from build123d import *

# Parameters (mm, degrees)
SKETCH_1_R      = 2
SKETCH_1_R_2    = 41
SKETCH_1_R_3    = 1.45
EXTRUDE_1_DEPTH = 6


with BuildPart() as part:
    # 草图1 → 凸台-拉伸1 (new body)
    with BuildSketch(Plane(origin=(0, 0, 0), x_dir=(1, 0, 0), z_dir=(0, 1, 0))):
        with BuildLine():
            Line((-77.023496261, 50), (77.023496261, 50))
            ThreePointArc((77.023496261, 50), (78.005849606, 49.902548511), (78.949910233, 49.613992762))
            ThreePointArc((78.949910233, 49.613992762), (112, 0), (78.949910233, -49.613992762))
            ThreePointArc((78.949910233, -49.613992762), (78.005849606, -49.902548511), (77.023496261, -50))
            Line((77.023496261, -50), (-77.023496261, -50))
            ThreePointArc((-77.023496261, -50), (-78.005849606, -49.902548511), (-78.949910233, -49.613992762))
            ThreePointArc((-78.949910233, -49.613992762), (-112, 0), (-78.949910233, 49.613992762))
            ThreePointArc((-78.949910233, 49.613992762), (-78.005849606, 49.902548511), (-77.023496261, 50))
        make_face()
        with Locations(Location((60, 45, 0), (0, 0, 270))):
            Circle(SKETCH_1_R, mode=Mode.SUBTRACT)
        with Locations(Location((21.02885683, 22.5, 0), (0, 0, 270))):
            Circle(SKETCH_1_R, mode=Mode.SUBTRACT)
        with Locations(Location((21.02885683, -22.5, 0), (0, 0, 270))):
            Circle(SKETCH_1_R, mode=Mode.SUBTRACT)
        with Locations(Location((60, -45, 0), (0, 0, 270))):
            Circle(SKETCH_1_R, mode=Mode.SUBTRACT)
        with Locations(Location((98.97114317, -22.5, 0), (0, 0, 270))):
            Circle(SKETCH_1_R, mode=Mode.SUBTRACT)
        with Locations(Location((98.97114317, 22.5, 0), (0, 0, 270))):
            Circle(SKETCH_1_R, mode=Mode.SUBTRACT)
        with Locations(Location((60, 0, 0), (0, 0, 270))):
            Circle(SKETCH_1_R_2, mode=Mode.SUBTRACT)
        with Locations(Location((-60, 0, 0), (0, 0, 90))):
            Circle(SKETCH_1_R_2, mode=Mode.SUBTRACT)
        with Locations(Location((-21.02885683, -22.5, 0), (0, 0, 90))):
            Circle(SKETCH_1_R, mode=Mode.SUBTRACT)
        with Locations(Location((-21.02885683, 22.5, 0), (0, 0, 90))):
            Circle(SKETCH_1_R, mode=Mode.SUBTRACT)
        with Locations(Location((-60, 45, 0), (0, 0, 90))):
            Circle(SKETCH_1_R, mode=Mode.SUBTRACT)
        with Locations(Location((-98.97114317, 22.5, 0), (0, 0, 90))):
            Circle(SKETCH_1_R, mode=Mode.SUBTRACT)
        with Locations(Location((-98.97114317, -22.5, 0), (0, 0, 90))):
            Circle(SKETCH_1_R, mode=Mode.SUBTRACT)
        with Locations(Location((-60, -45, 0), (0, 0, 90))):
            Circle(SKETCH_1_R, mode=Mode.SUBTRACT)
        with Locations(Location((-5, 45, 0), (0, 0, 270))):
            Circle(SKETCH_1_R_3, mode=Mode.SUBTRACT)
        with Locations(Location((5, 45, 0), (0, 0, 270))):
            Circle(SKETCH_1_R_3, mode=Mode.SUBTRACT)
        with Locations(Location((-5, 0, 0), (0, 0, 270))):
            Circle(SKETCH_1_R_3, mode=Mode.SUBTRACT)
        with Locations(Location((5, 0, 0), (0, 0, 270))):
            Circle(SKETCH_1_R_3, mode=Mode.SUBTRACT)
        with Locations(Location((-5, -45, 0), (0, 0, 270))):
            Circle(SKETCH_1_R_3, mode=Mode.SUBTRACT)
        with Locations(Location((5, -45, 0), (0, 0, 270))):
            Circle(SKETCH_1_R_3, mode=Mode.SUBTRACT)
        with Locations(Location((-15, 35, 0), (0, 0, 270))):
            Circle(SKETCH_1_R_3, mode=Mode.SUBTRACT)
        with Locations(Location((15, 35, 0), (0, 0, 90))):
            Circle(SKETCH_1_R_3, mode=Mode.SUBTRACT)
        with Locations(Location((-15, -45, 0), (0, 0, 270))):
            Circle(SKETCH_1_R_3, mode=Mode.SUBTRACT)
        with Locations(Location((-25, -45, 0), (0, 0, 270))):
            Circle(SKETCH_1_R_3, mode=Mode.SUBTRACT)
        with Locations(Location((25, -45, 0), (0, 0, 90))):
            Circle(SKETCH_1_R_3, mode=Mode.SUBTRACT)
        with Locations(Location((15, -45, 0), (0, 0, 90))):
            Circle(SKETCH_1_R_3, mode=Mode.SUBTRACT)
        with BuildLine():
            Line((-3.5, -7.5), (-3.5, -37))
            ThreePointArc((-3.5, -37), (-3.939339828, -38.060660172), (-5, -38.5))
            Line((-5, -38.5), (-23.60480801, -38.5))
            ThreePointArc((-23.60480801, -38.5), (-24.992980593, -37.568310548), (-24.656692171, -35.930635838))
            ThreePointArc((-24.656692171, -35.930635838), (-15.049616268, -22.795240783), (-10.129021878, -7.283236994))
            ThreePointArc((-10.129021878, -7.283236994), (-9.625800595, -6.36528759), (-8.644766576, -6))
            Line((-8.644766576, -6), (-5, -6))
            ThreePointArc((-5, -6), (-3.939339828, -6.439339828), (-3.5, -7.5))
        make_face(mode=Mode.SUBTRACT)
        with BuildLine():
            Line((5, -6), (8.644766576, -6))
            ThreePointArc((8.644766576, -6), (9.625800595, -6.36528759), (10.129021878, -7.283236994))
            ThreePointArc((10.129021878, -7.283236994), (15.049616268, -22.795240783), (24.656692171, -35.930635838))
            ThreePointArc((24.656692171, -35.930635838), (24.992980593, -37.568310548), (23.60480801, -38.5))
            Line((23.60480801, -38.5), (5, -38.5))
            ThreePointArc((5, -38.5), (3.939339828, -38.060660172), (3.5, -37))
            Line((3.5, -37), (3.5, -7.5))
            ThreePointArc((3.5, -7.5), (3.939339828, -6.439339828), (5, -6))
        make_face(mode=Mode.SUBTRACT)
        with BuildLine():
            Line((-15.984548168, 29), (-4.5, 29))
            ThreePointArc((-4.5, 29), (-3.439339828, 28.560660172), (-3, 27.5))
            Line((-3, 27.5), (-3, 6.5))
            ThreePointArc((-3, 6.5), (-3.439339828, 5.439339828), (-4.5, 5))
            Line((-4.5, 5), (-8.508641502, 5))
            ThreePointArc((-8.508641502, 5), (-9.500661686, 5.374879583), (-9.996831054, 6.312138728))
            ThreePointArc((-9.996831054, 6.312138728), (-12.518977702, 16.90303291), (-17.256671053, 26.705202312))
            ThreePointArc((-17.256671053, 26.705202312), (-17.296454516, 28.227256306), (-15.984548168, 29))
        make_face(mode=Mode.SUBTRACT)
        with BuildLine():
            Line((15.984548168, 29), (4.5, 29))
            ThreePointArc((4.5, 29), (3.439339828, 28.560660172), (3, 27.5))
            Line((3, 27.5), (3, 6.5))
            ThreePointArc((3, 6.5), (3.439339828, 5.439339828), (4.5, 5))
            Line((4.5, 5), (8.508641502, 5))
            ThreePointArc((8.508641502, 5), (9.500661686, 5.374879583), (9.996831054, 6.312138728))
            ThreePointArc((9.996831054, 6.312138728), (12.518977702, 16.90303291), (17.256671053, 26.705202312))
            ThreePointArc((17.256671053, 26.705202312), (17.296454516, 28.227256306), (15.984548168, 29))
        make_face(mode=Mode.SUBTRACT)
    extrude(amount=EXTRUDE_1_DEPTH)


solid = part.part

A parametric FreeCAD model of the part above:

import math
import FreeCAD as App
import Part
import Sketcher
Q = App.Units.Quantity

doc = App.newDocument("Part")
body = doc.addObject("PartDesign::Body", "Body")

sketch1 = doc.addObject("Sketcher::SketchObject", "Sketch")
body.addObject(sketch1)
sketch1.AttachmentSupport = (doc.XZ_Plane, [""])
sketch1.MapMode = "FlatFace"
sketch1.addGeometry([
    Part.LineSegment(App.Vector(77, -50, 0), App.Vector(-77, -50, 0)),
    Part.ArcOfCircle(Part.Circle(App.Vector(-77, -45, 0), App.Vector(0, 0, 1), 5), math.radians(-113), math.radians(-90)),
    Part.ArcOfCircle(Part.Circle(App.Vector(-58.2, 0, 0), App.Vector(0, 0, 1), 53.8), math.radians(113), math.radians(247)),
    Part.ArcOfCircle(Part.Circle(App.Vector(-77, 45, 0), App.Vector(0, 0, 1), 5), math.radians(90), math.radians(113)),
    Part.LineSegment(App.Vector(-77, 50, 0), App.Vector(77, 50, 0)),
    Part.ArcOfCircle(Part.Circle(App.Vector(77, 45, 0), App.Vector(0, 0, 1), 5), math.radians(67), math.radians(90)),
    Part.ArcOfCircle(Part.Circle(App.Vector(58.2, 0, 0), App.Vector(0, 0, 1), 53.8), math.radians(-67), math.radians(67)),
    Part.ArcOfCircle(Part.Circle(App.Vector(77, -45, 0), App.Vector(0, 0, 1), 5), math.radians(-90), math.radians(-67)),
    Part.Circle(App.Vector(60, 45, 0), App.Vector(0, 0, 1), 2),
    Part.Circle(App.Vector(25, 45, 0), App.Vector(0, 0, 1), 1.4),
    Part.Circle(App.Vector(15, 45, 0), App.Vector(0, 0, 1), 1.4),
    Part.Circle(App.Vector(5, 45, 0), App.Vector(0, 0, 1), 1.4),
    Part.Circle(App.Vector(99, 22.5, 0), App.Vector(0, 0, 1), 2),
    Part.Circle(App.Vector(21, 22.5, 0), App.Vector(0, 0, 1), 2),
    Part.LineSegment(App.Vector(5, 6, 0), App.Vector(8.6, 6, 0)),
    Part.ArcOfCircle(Part.Circle(App.Vector(8.6, 7.5, 0), App.Vector(0, 0, 1), 1.5), math.radians(-90), math.radians(-8)),
    Part.ArcOfCircle(Part.Circle(App.Vector(60, 0, 0), App.Vector(0, 0, 1), 50.4), math.radians(135), math.radians(172)),
    Part.ArcOfCircle(Part.Circle(App.Vector(23.6, 37, 0), App.Vector(0, 0, 1), 1.5), math.radians(-45), math.radians(90)),
    Part.LineSegment(App.Vector(23.6, 38.5, 0), App.Vector(5, 38.5, 0)),
    Part.ArcOfCircle(Part.Circle(App.Vector(5, 37, 0), App.Vector(0, 0, 1), 1.5), math.radians(90), math.radians(180)),
    Part.LineSegment(App.Vector(3.5, 37, 0), App.Vector(3.5, 7.5, 0)),
    Part.ArcOfCircle(Part.Circle(App.Vector(5, 7.5, 0), App.Vector(0, 0, 1), 1.5), math.radians(180), math.radians(270)),
    Part.Circle(App.Vector(-5, 45, 0), App.Vector(0, 0, 1), 1.4),
    Part.Circle(App.Vector(-15, 45, 0), App.Vector(0, 0, 1), 1.4),
    Part.Circle(App.Vector(-25, 45, 0), App.Vector(0, 0, 1), 1.4),
    Part.Circle(App.Vector(-60, 45, 0), App.Vector(0, 0, 1), 2),
    Part.LineSegment(App.Vector(-3.5, 7.5, 0), App.Vector(-3.5, 37, 0)),
    Part.ArcOfCircle(Part.Circle(App.Vector(-5, 37, 0), App.Vector(0, 0, 1), 1.5), math.radians(0), math.radians(90)),
    Part.LineSegment(App.Vector(-5, 38.5, 0), App.Vector(-23.6, 38.5, 0)),
    Part.ArcOfCircle(Part.Circle(App.Vector(-23.6, 37, 0), App.Vector(0, 0, 1), 1.5), math.radians(90), math.radians(225)),
    Part.ArcOfCircle(Part.Circle(App.Vector(-60, 0, 0), App.Vector(0, 0, 1), 50.4), math.radians(8), math.radians(45)),
    Part.ArcOfCircle(Part.Circle(App.Vector(-8.6, 7.5, 0), App.Vector(0, 0, 1), 1.5), math.radians(-172), math.radians(-90)),
    Part.LineSegment(App.Vector(-8.6, 6, 0), App.Vector(-5, 6, 0)),
    Part.ArcOfCircle(Part.Circle(App.Vector(-5, 7.5, 0), App.Vector(0, 0, 1), 1.5), math.radians(-90), math.radians(0)),
    Part.Circle(App.Vector(-21, 22.5, 0), App.Vector(0, 0, 1), 2),
    Part.Circle(App.Vector(-99, 22.5, 0), App.Vector(0, 0, 1), 2),
    Part.Circle(App.Vector(60, 0, 0), App.Vector(0, 0, 1), 41),
    Part.Circle(App.Vector(99, -22.5, 0), App.Vector(0, 0, 1), 2),
    Part.Circle(App.Vector(5, 0, 0), App.Vector(0, 0, 1), 1.4),
    Part.ArcOfCircle(Part.Circle(App.Vector(16, -27.5, 0), App.Vector(0, 0, 1), 1.5), math.radians(-90), math.radians(32)),
    Part.ArcOfCircle(Part.Circle(App.Vector(60, 0, 0), App.Vector(0, 0, 1), 50.4), math.radians(-173), math.radians(-148)),
    Part.ArcOfCircle(Part.Circle(App.Vector(8.5, -6.5, 0), App.Vector(0, 0, 1), 1.5), math.radians(7), math.radians(90)),
    Part.LineSegment(App.Vector(8.5, -5, 0), App.Vector(4.5, -5, 0)),
    Part.ArcOfCircle(Part.Circle(App.Vector(4.5, -6.5, 0), App.Vector(0, 0, 1), 1.5), math.radians(90), math.radians(180)),
    Part.LineSegment(App.Vector(3, -6.5, 0), App.Vector(3, -27.5, 0)),
    Part.ArcOfCircle(Part.Circle(App.Vector(4.5, -27.5, 0), App.Vector(0, 0, 1), 1.5), math.radians(180), math.radians(270)),
    Part.LineSegment(App.Vector(4.5, -29, 0), App.Vector(16, -29, 0)),
    Part.Circle(App.Vector(21, -22.5, 0), App.Vector(0, 0, 1), 2),
    Part.Circle(App.Vector(60, -45, 0), App.Vector(0, 0, 1), 2),
    Part.Circle(App.Vector(15, -35, 0), App.Vector(0, 0, 1), 1.4),
    Part.Circle(App.Vector(5, -45, 0), App.Vector(0, 0, 1), 1.4),
    Part.Circle(App.Vector(-5, 0, 0), App.Vector(0, 0, 1), 1.4),
    Part.LineSegment(App.Vector(-16, -29, 0), App.Vector(-4.5, -29, 0)),
    Part.ArcOfCircle(Part.Circle(App.Vector(-4.5, -27.5, 0), App.Vector(0, 0, 1), 1.5), math.radians(-90), math.radians(0)),
    Part.LineSegment(App.Vector(-3, -27.5, 0), App.Vector(-3, -6.5, 0)),
    Part.ArcOfCircle(Part.Circle(App.Vector(-4.5, -6.5, 0), App.Vector(0, 0, 1), 1.5), math.radians(0), math.radians(90)),
    Part.LineSegment(App.Vector(-4.5, -5, 0), App.Vector(-8.5, -5, 0)),
    Part.ArcOfCircle(Part.Circle(App.Vector(-8.5, -6.5, 0), App.Vector(0, 0, 1), 1.5), math.radians(90), math.radians(173)),
    Part.ArcOfCircle(Part.Circle(App.Vector(-60, 0, 0), App.Vector(0, 0, 1), 50.4), math.radians(-32), math.radians(-7)),
    Part.ArcOfCircle(Part.Circle(App.Vector(-16, -27.5, 0), App.Vector(0, 0, 1), 1.5), math.radians(148), math.radians(270)),
    Part.Circle(App.Vector(-21, -22.5, 0), App.Vector(0, 0, 1), 2),
    Part.Circle(App.Vector(-60, 0, 0), App.Vector(0, 0, 1), 41),
    Part.Circle(App.Vector(-99, -22.5, 0), App.Vector(0, 0, 1), 2),
    Part.Circle(App.Vector(-15, -35, 0), App.Vector(0, 0, 1), 1.4),
    Part.Circle(App.Vector(-5, -45, 0), App.Vector(0, 0, 1), 1.4),
    Part.Circle(App.Vector(-60, -45, 0), App.Vector(0, 0, 1), 2),
], False)
sketch1.addConstraint([
    Sketcher.Constraint("Tangent", 0, 2, 1, 2),
    Sketcher.Constraint("Tangent", 1, 1, 2, 2),
    Sketcher.Constraint("Tangent", 2, 1, 3, 2),
    Sketcher.Constraint("Tangent", 3, 1, 4, 1),
    Sketcher.Constraint("Tangent", 4, 2, 5, 2),
    Sketcher.Constraint("Tangent", 5, 1, 6, 2),
    Sketcher.Constraint("Tangent", 6, 1, 7, 2),
    Sketcher.Constraint("Tangent", 7, 1, 0, 1),
    Sketcher.Constraint("Tangent", 14, 2, 15, 1),
    Sketcher.Constraint("Tangent", 15, 2, 16, 2),
    Sketcher.Constraint("Tangent", 16, 1, 17, 1),
    Sketcher.Constraint("Tangent", 17, 2, 18, 1),
    Sketcher.Constraint("Tangent", 18, 2, 19, 1),
    Sketcher.Constraint("Tangent", 19, 2, 20, 1),
    Sketcher.Constraint("Tangent", 20, 2, 21, 1),
    Sketcher.Constraint("Tangent", 21, 2, 14, 1),
    Sketcher.Constraint("Tangent", 26, 2, 27, 1),
    Sketcher.Constraint("Tangent", 27, 2, 28, 1),
    Sketcher.Constraint("Tangent", 28, 2, 29, 1),
    Sketcher.Constraint("Tangent", 29, 2, 30, 2),
    Sketcher.Constraint("Tangent", 30, 1, 31, 1),
    Sketcher.Constraint("Tangent", 31, 2, 32, 1),
    Sketcher.Constraint("Tangent", 32, 2, 33, 1),
    Sketcher.Constraint("Tangent", 33, 2, 26, 1),
    Sketcher.Constraint("Tangent", 39, 2, 40, 2),
    Sketcher.Constraint("Tangent", 40, 1, 41, 1),
    Sketcher.Constraint("Tangent", 41, 2, 42, 1),
    Sketcher.Constraint("Tangent", 42, 2, 43, 1),
    Sketcher.Constraint("Tangent", 43, 2, 44, 1),
    Sketcher.Constraint("Tangent", 44, 2, 45, 1),
    Sketcher.Constraint("Tangent", 45, 2, 46, 1),
    Sketcher.Constraint("Tangent", 46, 2, 39, 1),
    Sketcher.Constraint("Tangent", 52, 2, 53, 1),
    Sketcher.Constraint("Tangent", 53, 2, 54, 1),
    Sketcher.Constraint("Tangent", 54, 2, 55, 1),
    Sketcher.Constraint("Tangent", 55, 2, 56, 1),
    Sketcher.Constraint("Tangent", 56, 2, 57, 1),
    Sketcher.Constraint("Tangent", 57, 2, 58, 2),
    Sketcher.Constraint("Tangent", 58, 1, 59, 1),
    Sketcher.Constraint("Tangent", 59, 2, 52, 1),
    Sketcher.Constraint("Horizontal", 0),
    Sketcher.Constraint("Horizontal", 4),
    Sketcher.Constraint("Horizontal", 14),
    Sketcher.Constraint("Horizontal", 18),
    Sketcher.Constraint("Vertical", 20),
    Sketcher.Constraint("Vertical", 26),
    Sketcher.Constraint("Horizontal", 28),
    Sketcher.Constraint("Horizontal", 32),
    Sketcher.Constraint("Horizontal", 42),
    Sketcher.Constraint("Vertical", 44),
    Sketcher.Constraint("Horizontal", 46),
    Sketcher.Constraint("Horizontal", 52),
    Sketcher.Constraint("Vertical", 54),
    Sketcher.Constraint("Horizontal", 56),
    Sketcher.Constraint("Coincident", 36, 3, 16, 3),
    Sketcher.Constraint("Coincident", 40, 3, 16, 3),
    Sketcher.Constraint("Coincident", 58, 3, 30, 3),
    Sketcher.Constraint("Coincident", 61, 3, 30, 3),
    Sketcher.Constraint("Equal", 1, 3),
    Sketcher.Constraint("Equal", 3, 5),
    Sketcher.Constraint("Equal", 2, 6),
    Sketcher.Constraint("Equal", 5, 7),
    Sketcher.Constraint("Equal", 9, 10),
    Sketcher.Constraint("Equal", 10, 11),
    Sketcher.Constraint("Equal", 8, 12),
    Sketcher.Constraint("Equal", 12, 13),
    Sketcher.Constraint("Equal", 15, 17),
    Sketcher.Constraint("Equal", 17, 19),
    Sketcher.Constraint("Equal", 19, 21),
    Sketcher.Constraint("Equal", 11, 22),
    Sketcher.Constraint("Equal", 22, 23),
    Sketcher.Constraint("Equal", 23, 24),
    Sketcher.Constraint("Equal", 13, 25),
    Sketcher.Constraint("Equal", 21, 27),
    Sketcher.Constraint("Equal", 27, 29),
    Sketcher.Constraint("Equal", 16, 30),
    Sketcher.Constraint("Equal", 29, 31),
    Sketcher.Constraint("Equal", 31, 33),
    Sketcher.Constraint("Equal", 25, 34),
    Sketcher.Constraint("Equal", 34, 35),
    Sketcher.Constraint("Equal", 35, 37),
    Sketcher.Constraint("Equal", 24, 38),
    Sketcher.Constraint("Equal", 33, 39),
    Sketcher.Constraint("Equal", 30, 40),
    Sketcher.Constraint("Equal", 39, 41),
    Sketcher.Constraint("Equal", 41, 43),
    Sketcher.Constraint("Equal", 43, 45),
    Sketcher.Constraint("Equal", 37, 47),
    Sketcher.Constraint("Equal", 47, 48),
    Sketcher.Constraint("Equal", 38, 49),
    Sketcher.Constraint("Equal", 49, 50),
    Sketcher.Constraint("Equal", 50, 51),
    Sketcher.Constraint("Equal", 45, 53),
    Sketcher.Constraint("Equal", 53, 55),
    Sketcher.Constraint("Equal", 55, 57),
    Sketcher.Constraint("Equal", 40, 58),
    Sketcher.Constraint("Equal", 57, 59),
    Sketcher.Constraint("Equal", 48, 60),
    Sketcher.Constraint("Equal", 36, 61),
    Sketcher.Constraint("Equal", 60, 62),
    Sketcher.Constraint("Equal", 51, 63),
    Sketcher.Constraint("Equal", 63, 64),
    Sketcher.Constraint("Equal", 62, 65),
    Sketcher.Constraint("Symmetric", 1, 3, 5, 3, -1, 1),
    Sketcher.Constraint("Symmetric", 16, 3, 30, 3, -1, 1),
    Sketcher.Constraint("Symmetric", 35, 3, 37, 3, -1, 1),
    Sketcher.Constraint("Symmetric", 34, 3, 47, 3, -1, 1),
    Sketcher.Constraint("Symmetric", 25, 3, 48, 3, -1, 1),
    Sketcher.Constraint("Symmetric", 22, 3, 50, 3, -1, 1),
    Sketcher.Constraint("Symmetric", 38, 3, 51, 3, -1, 1),
    Sketcher.Constraint("Symmetric", 13, 3, 60, 3, -1, 1),
    Sketcher.Constraint("Symmetric", 12, 3, 62, 3, -1, 1),
    Sketcher.Constraint("Symmetric", 11, 3, 64, 3, -1, 1),
    Sketcher.Constraint("Symmetric", 8, 3, 65, 3, -1, 1),
    Sketcher.Constraint("Symmetric", 2, 3, 6, 3, -2),
    Sketcher.Constraint("Symmetric", 11, 3, 22, 3, -2),
    Sketcher.Constraint("Symmetric", 10, 3, 23, 3, -2),
    Sketcher.Constraint("Symmetric", 9, 3, 24, 3, -2),
    Sketcher.Constraint("Symmetric", 8, 3, 25, 3, -2),
    Sketcher.Constraint("Symmetric", 19, 3, 27, 3, -2),
    Sketcher.Constraint("Symmetric", 15, 3, 31, 3, -2),
    Sketcher.Constraint("Symmetric", 13, 3, 34, 3, -2),
    Sketcher.Constraint("Symmetric", 12, 3, 35, 3, -2),
    Sketcher.Constraint("Symmetric", 45, 3, 53, 3, -2),
    Sketcher.Constraint("Symmetric", 49, 3, 63, 3, -2),
    Sketcher.Constraint("PointOnObject", 38, 3, -1),
    Sketcher.Constraint("Horizontal", 5, 3, 8, 3),
    Sketcher.Constraint("Horizontal", 8, 3, 9, 3),
    Sketcher.Constraint("Horizontal", 9, 3, 10, 3),
    Sketcher.Constraint("Horizontal", 10, 3, 11, 3),
    Sketcher.Constraint("Horizontal", 12, 3, 13, 3),
    Sketcher.Constraint("Horizontal", 43, 3, 55, 3),
    Sketcher.Constraint("Vertical", 8, 3, 16, 3),
    Sketcher.Constraint("Vertical", 11, 3, 19, 3),
    Sketcher.Constraint("Vertical", 21, 3, 38, 3),
    Sketcher.Constraint("Vertical", 10, 3, 49, 3),
    Sketcher.Constraint("Diameter", 8, Q("4 mm")),
    Sketcher.Constraint("Diameter", 36, Q("82 mm")),
    Sketcher.Constraint("Radius", 1, Q("5 mm")),
    Sketcher.Constraint("Diameter", 9, Q("2.9 mm")),
    Sketcher.Constraint("Radius", 15, Q("1.5 mm")),
    Sketcher.Constraint("Radius", 16, Q("50.4 mm")),
    Sketcher.Constraint("DistanceY", 44, 2, 44, 1, Q("21 mm")),
    Sketcher.Constraint("DistanceY", 20, 2, 20, 1, Q("29.5 mm")),
    Sketcher.Constraint("DistanceY", 1, 3, -1, 1, Q("45 mm")),
    Sketcher.Constraint("DistanceX", -1, 1, 8, 3, Q("60 mm")),
    Sketcher.Constraint("DistanceX", -1, 1, 9, 3, Q("25 mm")),
    Sketcher.Constraint("DistanceX", -1, 1, 10, 3, Q("15 mm")),
    Sketcher.Constraint("DistanceX", -1, 1, 11, 3, Q("5 mm")),
    Sketcher.Constraint("DistanceY", -1, 1, 17, 3, Q("37 mm")),
    Sketcher.Constraint("DistanceY", 49, 3, -1, 1, Q("35 mm")),
    Sketcher.Constraint("DistanceY", 41, 2, -1, 1, Q("5 mm")),
    Sketcher.Constraint("DistanceX", -1, 1, 43, 2, Q("3 mm")),
    Sketcher.Constraint("DistanceY", -1, 1, 12, 3, Q("22.5 mm")),
    Sketcher.Constraint("Radius", 2, Q("53.764706 mm")),
    Sketcher.Constraint("DistanceX", 0, 2, 0, 1, Q("154.046993 mm")),
    Sketcher.Constraint("DistanceX", -1, 1, 12, 3, Q("98.971143 mm")),
    Sketcher.Constraint("DistanceX", -1, 1, 13, 3, Q("21.028857 mm")),
])
pad1 = doc.addObject("PartDesign::Pad", "Pad")
body.addObject(pad1)
pad1.Profile = sketch1
pad1.Length = 6
pad1.Reversed = True

doc.recompute()
